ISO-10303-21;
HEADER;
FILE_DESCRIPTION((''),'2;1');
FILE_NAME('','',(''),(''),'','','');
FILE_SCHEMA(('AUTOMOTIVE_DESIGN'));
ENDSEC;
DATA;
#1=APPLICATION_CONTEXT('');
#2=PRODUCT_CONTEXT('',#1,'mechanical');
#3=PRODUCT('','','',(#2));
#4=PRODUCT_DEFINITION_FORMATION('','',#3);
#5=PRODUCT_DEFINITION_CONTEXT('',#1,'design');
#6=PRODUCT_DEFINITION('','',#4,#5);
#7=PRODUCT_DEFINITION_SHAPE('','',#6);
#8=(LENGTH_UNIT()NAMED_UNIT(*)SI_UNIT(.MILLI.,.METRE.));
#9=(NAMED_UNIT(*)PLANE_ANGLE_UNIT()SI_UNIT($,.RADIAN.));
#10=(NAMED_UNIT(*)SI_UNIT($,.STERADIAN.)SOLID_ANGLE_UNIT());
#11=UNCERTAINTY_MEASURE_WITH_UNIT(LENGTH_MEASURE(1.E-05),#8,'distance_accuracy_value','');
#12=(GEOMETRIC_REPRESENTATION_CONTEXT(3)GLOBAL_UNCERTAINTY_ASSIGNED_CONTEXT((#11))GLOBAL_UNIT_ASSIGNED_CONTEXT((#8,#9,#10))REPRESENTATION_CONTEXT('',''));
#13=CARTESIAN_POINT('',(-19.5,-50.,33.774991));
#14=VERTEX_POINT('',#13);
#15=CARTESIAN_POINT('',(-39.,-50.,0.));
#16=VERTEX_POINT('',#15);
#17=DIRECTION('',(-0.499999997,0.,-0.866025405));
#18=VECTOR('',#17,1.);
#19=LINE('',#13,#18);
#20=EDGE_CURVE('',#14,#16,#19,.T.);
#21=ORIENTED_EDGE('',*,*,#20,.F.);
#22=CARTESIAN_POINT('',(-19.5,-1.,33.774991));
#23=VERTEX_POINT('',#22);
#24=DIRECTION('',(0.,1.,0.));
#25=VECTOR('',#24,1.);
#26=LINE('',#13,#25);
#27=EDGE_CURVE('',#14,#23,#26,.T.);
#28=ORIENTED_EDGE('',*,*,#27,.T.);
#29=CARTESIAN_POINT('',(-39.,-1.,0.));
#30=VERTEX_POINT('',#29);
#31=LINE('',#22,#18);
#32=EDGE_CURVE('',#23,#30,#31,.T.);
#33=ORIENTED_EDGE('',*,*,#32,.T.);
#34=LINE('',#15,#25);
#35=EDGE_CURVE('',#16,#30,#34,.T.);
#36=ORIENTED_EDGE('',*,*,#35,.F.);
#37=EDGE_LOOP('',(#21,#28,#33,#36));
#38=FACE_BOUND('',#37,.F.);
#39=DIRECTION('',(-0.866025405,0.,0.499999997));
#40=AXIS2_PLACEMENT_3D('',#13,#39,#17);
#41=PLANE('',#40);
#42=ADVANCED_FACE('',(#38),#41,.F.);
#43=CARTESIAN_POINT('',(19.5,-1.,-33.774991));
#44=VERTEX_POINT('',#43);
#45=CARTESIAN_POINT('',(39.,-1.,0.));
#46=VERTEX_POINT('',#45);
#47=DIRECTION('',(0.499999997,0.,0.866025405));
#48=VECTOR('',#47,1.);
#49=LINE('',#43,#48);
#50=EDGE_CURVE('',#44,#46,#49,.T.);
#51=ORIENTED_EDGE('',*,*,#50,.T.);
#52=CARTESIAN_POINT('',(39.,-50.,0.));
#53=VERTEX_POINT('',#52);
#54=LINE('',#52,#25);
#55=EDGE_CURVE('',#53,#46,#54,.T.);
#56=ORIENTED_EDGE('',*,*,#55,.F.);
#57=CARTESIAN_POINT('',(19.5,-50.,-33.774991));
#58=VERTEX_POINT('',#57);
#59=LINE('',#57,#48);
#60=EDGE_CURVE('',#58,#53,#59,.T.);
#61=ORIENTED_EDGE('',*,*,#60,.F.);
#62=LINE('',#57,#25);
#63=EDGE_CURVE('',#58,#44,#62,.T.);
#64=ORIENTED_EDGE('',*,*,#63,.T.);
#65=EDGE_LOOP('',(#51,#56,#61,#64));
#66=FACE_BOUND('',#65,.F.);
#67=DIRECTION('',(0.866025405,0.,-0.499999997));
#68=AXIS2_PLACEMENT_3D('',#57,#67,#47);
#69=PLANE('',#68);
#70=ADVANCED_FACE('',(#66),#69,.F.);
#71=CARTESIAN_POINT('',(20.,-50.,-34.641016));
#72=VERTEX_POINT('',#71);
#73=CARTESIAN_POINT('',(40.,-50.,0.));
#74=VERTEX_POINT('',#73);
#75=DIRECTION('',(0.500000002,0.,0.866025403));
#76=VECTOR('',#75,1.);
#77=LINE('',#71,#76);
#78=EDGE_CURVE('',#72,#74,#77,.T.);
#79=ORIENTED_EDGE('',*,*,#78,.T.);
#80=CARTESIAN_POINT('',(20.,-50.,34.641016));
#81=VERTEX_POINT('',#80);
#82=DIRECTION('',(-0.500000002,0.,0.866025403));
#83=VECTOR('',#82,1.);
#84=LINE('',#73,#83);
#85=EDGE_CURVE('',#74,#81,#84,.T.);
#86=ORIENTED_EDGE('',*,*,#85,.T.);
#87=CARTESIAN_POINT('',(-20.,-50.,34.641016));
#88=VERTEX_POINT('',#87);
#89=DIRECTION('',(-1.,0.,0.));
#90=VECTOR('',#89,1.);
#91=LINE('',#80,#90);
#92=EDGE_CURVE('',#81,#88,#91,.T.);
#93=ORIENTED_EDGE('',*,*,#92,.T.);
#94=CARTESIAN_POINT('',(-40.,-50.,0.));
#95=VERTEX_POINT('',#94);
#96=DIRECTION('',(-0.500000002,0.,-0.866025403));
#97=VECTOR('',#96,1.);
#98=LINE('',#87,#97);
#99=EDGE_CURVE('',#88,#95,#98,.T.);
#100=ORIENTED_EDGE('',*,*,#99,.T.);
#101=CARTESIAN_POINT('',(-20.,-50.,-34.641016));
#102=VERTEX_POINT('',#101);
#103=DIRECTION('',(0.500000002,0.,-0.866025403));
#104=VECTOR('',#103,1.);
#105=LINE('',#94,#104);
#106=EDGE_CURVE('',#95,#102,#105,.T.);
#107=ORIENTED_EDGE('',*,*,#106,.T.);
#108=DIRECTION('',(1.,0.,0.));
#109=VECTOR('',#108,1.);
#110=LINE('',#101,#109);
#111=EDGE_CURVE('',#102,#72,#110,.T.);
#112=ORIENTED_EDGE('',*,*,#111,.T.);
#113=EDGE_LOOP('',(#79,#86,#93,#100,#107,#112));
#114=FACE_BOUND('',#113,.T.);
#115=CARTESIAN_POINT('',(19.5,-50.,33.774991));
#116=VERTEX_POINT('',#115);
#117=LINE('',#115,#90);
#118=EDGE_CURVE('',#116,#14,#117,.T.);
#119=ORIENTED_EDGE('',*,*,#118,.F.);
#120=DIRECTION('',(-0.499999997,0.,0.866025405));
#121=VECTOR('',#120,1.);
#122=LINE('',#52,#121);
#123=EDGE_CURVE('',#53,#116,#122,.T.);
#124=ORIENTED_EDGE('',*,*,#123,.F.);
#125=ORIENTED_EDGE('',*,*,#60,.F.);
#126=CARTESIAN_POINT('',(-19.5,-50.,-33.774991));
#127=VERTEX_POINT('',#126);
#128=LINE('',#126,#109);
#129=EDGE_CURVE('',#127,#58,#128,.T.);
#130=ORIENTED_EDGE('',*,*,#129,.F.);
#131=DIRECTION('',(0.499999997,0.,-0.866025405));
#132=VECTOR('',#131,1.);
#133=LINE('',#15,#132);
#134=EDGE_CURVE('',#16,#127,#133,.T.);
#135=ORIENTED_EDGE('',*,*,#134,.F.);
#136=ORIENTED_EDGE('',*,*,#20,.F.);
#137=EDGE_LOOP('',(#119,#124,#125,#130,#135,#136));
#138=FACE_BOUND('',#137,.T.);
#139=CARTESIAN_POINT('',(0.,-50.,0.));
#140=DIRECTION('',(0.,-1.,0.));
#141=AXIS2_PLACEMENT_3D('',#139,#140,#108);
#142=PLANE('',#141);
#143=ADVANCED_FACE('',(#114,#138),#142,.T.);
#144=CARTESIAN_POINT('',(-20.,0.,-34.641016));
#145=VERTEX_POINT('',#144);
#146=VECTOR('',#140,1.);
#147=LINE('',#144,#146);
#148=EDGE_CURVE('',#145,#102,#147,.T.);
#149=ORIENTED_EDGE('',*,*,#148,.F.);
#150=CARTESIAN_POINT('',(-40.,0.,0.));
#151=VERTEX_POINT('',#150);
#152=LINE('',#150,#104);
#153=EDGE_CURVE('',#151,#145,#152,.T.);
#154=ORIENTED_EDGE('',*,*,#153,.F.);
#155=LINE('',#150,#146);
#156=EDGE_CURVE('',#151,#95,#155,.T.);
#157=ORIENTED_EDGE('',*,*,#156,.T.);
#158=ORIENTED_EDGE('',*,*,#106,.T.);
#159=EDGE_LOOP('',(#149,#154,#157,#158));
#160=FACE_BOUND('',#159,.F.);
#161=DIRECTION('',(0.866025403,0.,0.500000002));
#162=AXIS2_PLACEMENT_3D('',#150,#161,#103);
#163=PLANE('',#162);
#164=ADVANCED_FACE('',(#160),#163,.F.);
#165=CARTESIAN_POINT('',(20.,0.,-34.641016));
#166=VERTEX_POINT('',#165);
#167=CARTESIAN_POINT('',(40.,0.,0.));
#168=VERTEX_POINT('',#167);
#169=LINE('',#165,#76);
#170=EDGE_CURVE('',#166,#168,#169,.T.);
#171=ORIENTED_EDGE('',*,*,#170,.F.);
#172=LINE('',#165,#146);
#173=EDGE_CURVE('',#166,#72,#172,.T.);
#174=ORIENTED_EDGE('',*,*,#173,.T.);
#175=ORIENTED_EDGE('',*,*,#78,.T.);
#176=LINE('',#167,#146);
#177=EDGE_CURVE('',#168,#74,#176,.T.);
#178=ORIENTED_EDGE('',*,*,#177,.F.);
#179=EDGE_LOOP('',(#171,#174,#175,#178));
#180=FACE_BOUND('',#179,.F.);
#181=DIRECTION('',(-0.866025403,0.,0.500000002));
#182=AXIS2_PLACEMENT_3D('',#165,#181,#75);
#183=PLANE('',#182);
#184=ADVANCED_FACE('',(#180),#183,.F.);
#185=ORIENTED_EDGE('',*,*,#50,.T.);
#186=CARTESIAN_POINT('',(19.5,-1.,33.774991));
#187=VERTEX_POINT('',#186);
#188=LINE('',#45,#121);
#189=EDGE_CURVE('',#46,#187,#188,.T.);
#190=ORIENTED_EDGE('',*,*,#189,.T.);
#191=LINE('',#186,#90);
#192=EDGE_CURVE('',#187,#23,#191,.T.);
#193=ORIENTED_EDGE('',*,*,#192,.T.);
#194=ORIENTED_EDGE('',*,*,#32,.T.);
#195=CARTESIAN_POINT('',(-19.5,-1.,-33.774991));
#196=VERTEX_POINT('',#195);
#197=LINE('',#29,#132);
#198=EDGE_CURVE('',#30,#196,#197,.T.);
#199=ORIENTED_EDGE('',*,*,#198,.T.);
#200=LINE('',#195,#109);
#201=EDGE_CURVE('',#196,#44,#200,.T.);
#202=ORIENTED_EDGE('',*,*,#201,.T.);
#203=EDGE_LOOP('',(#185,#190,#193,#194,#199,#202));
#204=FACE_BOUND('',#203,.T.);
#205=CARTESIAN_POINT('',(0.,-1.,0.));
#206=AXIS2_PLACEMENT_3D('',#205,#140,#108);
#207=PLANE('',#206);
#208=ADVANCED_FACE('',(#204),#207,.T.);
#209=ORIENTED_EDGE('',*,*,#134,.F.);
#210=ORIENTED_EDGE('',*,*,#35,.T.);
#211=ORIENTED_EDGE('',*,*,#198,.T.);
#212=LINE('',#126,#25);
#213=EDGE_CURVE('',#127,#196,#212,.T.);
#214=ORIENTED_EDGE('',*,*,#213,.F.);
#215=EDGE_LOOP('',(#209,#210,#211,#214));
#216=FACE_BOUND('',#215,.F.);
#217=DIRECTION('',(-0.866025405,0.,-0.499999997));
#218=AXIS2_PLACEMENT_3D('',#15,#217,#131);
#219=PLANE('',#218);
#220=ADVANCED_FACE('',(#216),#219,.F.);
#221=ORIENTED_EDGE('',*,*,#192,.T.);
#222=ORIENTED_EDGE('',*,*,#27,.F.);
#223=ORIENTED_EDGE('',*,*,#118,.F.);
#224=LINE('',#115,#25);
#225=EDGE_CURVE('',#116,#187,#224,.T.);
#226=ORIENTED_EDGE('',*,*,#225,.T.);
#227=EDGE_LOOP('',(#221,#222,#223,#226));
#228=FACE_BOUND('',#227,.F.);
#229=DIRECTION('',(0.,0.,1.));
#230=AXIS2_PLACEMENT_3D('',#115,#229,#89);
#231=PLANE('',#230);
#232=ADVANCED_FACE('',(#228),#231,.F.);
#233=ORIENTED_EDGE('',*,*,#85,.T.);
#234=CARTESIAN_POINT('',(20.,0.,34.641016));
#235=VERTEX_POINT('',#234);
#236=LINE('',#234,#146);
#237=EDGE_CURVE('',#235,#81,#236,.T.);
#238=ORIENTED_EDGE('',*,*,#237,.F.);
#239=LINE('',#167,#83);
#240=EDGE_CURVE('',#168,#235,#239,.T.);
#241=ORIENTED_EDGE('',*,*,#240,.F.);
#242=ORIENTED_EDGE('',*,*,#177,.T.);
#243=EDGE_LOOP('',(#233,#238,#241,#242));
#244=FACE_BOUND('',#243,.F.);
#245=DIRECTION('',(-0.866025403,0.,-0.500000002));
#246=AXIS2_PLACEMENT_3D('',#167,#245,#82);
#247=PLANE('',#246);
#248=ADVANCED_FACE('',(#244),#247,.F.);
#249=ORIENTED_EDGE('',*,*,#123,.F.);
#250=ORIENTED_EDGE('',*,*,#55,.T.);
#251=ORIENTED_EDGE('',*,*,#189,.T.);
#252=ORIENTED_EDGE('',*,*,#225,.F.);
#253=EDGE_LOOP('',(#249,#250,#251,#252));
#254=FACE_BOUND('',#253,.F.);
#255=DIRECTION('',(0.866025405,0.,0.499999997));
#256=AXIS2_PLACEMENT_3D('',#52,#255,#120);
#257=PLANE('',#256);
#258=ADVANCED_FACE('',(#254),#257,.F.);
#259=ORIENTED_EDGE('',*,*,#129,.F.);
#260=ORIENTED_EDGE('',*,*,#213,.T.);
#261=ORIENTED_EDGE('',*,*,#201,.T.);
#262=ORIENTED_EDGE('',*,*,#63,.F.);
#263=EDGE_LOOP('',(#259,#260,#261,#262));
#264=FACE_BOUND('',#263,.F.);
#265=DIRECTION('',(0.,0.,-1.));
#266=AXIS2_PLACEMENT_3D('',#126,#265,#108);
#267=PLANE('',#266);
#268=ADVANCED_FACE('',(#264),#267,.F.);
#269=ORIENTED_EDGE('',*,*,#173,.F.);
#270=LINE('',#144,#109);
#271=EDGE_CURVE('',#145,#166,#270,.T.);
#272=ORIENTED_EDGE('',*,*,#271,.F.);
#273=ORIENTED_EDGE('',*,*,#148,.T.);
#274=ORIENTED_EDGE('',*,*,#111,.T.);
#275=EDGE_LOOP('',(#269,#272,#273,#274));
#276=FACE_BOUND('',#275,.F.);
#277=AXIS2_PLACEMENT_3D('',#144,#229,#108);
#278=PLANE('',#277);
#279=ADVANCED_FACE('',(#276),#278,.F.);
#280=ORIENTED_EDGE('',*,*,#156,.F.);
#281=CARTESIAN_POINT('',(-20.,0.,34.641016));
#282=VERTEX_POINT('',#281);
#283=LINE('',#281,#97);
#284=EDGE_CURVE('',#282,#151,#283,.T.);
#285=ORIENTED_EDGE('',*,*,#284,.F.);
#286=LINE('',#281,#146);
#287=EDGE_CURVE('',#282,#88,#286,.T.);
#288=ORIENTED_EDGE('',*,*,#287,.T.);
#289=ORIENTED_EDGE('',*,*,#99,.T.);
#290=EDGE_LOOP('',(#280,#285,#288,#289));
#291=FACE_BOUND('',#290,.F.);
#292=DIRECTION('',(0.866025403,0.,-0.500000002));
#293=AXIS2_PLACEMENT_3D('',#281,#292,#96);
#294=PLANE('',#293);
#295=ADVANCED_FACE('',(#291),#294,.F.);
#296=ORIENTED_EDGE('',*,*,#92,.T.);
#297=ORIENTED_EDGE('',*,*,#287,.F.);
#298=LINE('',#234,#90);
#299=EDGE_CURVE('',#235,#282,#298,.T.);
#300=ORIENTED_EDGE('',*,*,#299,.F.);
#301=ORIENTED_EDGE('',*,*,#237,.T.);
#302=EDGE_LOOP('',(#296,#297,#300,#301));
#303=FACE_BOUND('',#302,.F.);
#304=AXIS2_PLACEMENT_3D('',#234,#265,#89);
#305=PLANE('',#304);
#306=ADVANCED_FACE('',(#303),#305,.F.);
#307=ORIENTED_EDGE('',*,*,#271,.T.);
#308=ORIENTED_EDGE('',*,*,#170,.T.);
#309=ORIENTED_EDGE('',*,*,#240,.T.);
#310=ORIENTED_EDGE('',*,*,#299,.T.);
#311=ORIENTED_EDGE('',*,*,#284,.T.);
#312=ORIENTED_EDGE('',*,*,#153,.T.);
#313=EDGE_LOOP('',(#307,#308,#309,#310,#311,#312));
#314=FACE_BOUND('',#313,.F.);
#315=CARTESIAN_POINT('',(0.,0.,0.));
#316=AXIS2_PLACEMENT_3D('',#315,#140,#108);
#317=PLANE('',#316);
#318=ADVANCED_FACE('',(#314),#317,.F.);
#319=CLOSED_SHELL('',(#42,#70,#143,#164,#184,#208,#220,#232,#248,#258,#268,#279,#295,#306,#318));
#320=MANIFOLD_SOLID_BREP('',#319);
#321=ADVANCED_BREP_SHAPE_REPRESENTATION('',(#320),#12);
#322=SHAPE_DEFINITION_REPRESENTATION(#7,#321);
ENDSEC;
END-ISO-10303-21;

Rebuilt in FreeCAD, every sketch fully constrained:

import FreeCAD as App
import Part
import Sketcher
from FreeCAD import Vector
Q = App.Units.Quantity

doc = App.newDocument("Part")
body = doc.addObject("PartDesign::Body", "Body")

sketch1 = body.newObject("Sketcher::SketchObject", "Sketch")
sketch1.AttachmentSupport = (doc.getObject("XZ_Plane"), [""])
sketch1.MapMode = "FlatFace"
sketch1.addGeometry([
    Part.LineSegment(Vector(40, 0, 0), Vector(20, 35, 0)),
    Part.LineSegment(Vector(20, 35, 0), Vector(-20, 35, 0)),
    Part.LineSegment(Vector(-20, 35, 0), Vector(-40, 0, 0)),
    Part.LineSegment(Vector(-40, 0, 0), Vector(-20, -35, 0)),
    Part.LineSegment(Vector(-20, -35, 0), Vector(20, -35, 0)),
    Part.LineSegment(Vector(20, -35, 0), Vector(40, 0, 0)),
], False)
sketch1.addConstraint([
    Sketcher.Constraint("Coincident", 0, 2, 1, 1),
    Sketcher.Constraint("Coincident", 1, 2, 2, 1),
    Sketcher.Constraint("Coincident", 2, 2, 3, 1),
    Sketcher.Constraint("Coincident", 3, 2, 4, 1),
    Sketcher.Constraint("Coincident", 4, 2, 5, 1),
    Sketcher.Constraint("Coincident", 5, 2, 0, 1),
    Sketcher.Constraint("Horizontal", 1),
    Sketcher.Constraint("Horizontal", 4),
    Sketcher.Constraint("Symmetric", 0, 2, 3, 2, -1, 1),
    Sketcher.Constraint("Symmetric", 2, 2, 5, 2, -1, 1),
    Sketcher.Constraint("PointOnObject", 2, 2, -1),
    Sketcher.Constraint("Parallel", 2, 5),
    Sketcher.Constraint("Vertical", 1, 2, 3, 2),
    Sketcher.Constraint("DistanceX", 1, 2, 1, 1, 40.0),
    Sketcher.Constraint("Angle", 0, Q("120 deg")),
    Sketcher.Constraint("Distance", 0, 40.0),
])
pad1 = body.newObject("PartDesign::Pad", "Pad")
pad1.Profile = sketch1
pad1.Length = 50

sketch2 = body.newObject("Sketcher::SketchObject", "Sketch001")
sketch2.AttachmentSupport = (doc.getObject("XZ_Plane"), [""])
sketch2.MapMode = "FlatFace"
sketch2.AttachmentOffset = App.Placement(Vector(0, 0, 50), App.Rotation())
sketch2.addGeometry([
    Part.LineSegment(Vector(20, -34, 0), Vector(39, 0, 0)),
    Part.LineSegment(Vector(39, 0, 0), Vector(20, 34, 0)),
    Part.LineSegment(Vector(20, 34, 0), Vector(-20, 34, 0)),
    Part.LineSegment(Vector(-20, 34, 0), Vector(-39, 0, 0)),
    Part.LineSegment(Vector(-39, 0, 0), Vector(-20, -34, 0)),
    Part.LineSegment(Vector(-20, -34, 0), Vector(20, -34, 0)),
], False)
sketch2.addConstraint([
    Sketcher.Constraint("Coincident", 0, 2, 1, 1),
    Sketcher.Constraint("Coincident", 1, 2, 2, 1),
    Sketcher.Constraint("Coincident", 2, 2, 3, 1),
    Sketcher.Constraint("Coincident", 3, 2, 4, 1),
    Sketcher.Constraint("Coincident", 4, 2, 5, 1),
    Sketcher.Constraint("Coincident", 5, 2, 0, 1),
    Sketcher.Constraint("Horizontal", 2),
    Sketcher.Constraint("Horizontal", 5),
    Sketcher.Constraint("Symmetric", 0, 2, 3, 2, -1, 1),
    Sketcher.Constraint("Symmetric", 1, 2, 4, 2, -1, 1),
    Sketcher.Constraint("PointOnObject", 0, 2, -1),
    Sketcher.Constraint("Parallel", 0, 3),
    Sketcher.Constraint("Vertical", 2, 2, 4, 2),
    Sketcher.Constraint("DistanceX", 2, 2, 2, 1, 39.0),
    Sketcher.Constraint("Angle", 0, Q("60 deg")),
    Sketcher.Constraint("Distance", 0, 39.0),
])
pocket1 = body.newObject("PartDesign::Pocket", "Pocket")
pocket1.Profile = sketch2
pocket1.Length = 49

doc.recompute()
